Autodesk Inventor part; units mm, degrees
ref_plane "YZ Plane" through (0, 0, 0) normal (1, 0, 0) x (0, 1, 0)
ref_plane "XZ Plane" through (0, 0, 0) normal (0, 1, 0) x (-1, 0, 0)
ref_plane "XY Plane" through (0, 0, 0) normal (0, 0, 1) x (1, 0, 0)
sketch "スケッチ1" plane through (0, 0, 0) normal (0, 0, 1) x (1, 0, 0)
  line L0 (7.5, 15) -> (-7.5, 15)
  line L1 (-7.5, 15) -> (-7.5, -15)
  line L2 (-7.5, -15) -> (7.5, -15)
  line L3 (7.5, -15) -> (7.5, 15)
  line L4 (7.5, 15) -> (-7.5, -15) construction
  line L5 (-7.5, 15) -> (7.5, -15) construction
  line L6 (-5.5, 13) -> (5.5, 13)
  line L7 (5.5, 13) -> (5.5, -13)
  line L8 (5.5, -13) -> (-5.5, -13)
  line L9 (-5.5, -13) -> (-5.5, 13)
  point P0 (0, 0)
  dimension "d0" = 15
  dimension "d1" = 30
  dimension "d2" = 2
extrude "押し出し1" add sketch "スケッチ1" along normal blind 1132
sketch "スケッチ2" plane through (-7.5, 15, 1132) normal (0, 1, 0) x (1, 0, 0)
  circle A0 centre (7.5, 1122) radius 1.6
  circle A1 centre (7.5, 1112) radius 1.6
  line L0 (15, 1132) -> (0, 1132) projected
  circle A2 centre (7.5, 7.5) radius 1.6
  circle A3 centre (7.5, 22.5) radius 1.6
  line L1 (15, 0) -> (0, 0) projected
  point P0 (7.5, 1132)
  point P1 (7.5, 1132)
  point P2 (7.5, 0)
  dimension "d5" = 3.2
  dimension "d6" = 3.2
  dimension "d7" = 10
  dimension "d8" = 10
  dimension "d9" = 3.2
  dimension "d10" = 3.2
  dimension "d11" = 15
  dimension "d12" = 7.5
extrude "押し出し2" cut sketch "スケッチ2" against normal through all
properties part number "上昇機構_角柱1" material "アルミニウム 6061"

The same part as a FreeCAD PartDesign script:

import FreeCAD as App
import Part
import Sketcher

V = App.Vector

doc = App.newDocument("Part")
body = doc.addObject("PartDesign::Body", "Body")

# Sketch on XY plane
sketch1 = body.newObject("Sketcher::SketchObject", "Sketch")
sketch1.AttachmentSupport = (doc.getObject("XY_Plane"), [""])
sketch1.MapMode = "FlatFace"
sketch1.addGeometry([
    Part.LineSegment(V(8, -15, 0), V(8, 15, 0)),  # 0
    Part.LineSegment(V(8, 15, 0), V(-8, 15, 0)),  # 1
    Part.LineSegment(V(-8, 15, 0), V(-8, -15, 0)),  # 2
    Part.LineSegment(V(-8, -15, 0), V(8, -15, 0)),  # 3
    Part.LineSegment(V(-6, -13, 0), V(-6, 13, 0)),  # 4
    Part.LineSegment(V(-6, 13, 0), V(6, 13, 0)),  # 5
    Part.LineSegment(V(6, 13, 0), V(6, -13, 0)),  # 6
    Part.LineSegment(V(6, -13, 0), V(-6, -13, 0)),  # 7
], False)
sketch1.addConstraint([
    Sketcher.Constraint("Coincident", 0, 2, 1, 1),
    Sketcher.Constraint("Coincident", 1, 2, 2, 1),
    Sketcher.Constraint("Coincident", 2, 2, 3, 1),
    Sketcher.Constraint("Coincident", 3, 2, 0, 1),
    Sketcher.Constraint("Coincident", 4, 2, 5, 1),
    Sketcher.Constraint("Coincident", 5, 2, 6, 1),
    Sketcher.Constraint("Coincident", 6, 2, 7, 1),
    Sketcher.Constraint("Coincident", 7, 2, 4, 1),
    Sketcher.Constraint("Vertical", 0),
    Sketcher.Constraint("Horizontal", 1),
    Sketcher.Constraint("Vertical", 2),
    Sketcher.Constraint("Horizontal", 3),
    Sketcher.Constraint("Vertical", 4),
    Sketcher.Constraint("Horizontal", 5),
    Sketcher.Constraint("Vertical", 6),
    Sketcher.Constraint("Horizontal", 7),
    Sketcher.Constraint("Symmetric", 0, 2, 2, 2, -1, 1),
    Sketcher.Constraint("Symmetric", 4, 2, 6, 2, -1, 1),
    Sketcher.Constraint("DistanceX", 1, 2, 1, 1, 15.0),
    Sketcher.Constraint("DistanceY", 0, 1, 0, 2, 30.0),
    Sketcher.Constraint("DistanceX", 1, 2, 4, 2, 2.0),
    Sketcher.Constraint("DistanceY", 4, 2, 1, 2, 2.0),
])
pad1 = body.newObject("PartDesign::Pad", "Pad")
pad1.Profile = sketch1
pad1.Length = 1132

# Sketch on XZ plane
sketch2 = body.newObject("Sketcher::SketchObject", "Sketch001")
sketch2.AttachmentSupport = (doc.getObject("XZ_Plane"), [""])
sketch2.MapMode = "FlatFace"
sketch2.AttachmentOffset = App.Placement(V(0, 0, -15), App.Rotation())
sketch2.addGeometry([
    Part.Circle(V(0, 10, 0), V(0, 0, 1), 1.6),
    Part.Circle(V(0, 20, 0), V(0, 0, 1), 1.6),
    Part.Circle(V(0, 1124.5, 0), V(0, 0, 1), 1.6),
    Part.Circle(V(0, 1109.5, 0), V(0, 0, 1), 1.6),
], False)
sketch2.addConstraint([
    Sketcher.Constraint("Equal", 0, 1),
    Sketcher.Constraint("Equal", 1, 2),
    Sketcher.Constraint("Equal", 2, 3),
    Sketcher.Constraint("PointOnObject", 0, 3, -2),
    Sketcher.Constraint("PointOnObject", 1, 3, -2),
    Sketcher.Constraint("PointOnObject", 2, 3, -2),
    Sketcher.Constraint("PointOnObject", 3, 3, -2),
    Sketcher.Constraint("Diameter", 0, 3.2),
    Sketcher.Constraint("DistanceY", -1, 1, 0, 3, 10.0),
    Sketcher.Constraint("DistanceY", 0, 3, 1, 3, 10.0),
    Sketcher.Constraint("DistanceY", 3, 3, 2, 3, 15.0),
    Sketcher.Constraint("DistanceY", -1, 1, 2, 3, 1124.5),
])
pocket1 = body.newObject("PartDesign::Pocket", "Pocket")
pocket1.Profile = sketch2
pocket1.Type = "ThroughAll"
pocket1.Reversed = True

doc.recompute()
